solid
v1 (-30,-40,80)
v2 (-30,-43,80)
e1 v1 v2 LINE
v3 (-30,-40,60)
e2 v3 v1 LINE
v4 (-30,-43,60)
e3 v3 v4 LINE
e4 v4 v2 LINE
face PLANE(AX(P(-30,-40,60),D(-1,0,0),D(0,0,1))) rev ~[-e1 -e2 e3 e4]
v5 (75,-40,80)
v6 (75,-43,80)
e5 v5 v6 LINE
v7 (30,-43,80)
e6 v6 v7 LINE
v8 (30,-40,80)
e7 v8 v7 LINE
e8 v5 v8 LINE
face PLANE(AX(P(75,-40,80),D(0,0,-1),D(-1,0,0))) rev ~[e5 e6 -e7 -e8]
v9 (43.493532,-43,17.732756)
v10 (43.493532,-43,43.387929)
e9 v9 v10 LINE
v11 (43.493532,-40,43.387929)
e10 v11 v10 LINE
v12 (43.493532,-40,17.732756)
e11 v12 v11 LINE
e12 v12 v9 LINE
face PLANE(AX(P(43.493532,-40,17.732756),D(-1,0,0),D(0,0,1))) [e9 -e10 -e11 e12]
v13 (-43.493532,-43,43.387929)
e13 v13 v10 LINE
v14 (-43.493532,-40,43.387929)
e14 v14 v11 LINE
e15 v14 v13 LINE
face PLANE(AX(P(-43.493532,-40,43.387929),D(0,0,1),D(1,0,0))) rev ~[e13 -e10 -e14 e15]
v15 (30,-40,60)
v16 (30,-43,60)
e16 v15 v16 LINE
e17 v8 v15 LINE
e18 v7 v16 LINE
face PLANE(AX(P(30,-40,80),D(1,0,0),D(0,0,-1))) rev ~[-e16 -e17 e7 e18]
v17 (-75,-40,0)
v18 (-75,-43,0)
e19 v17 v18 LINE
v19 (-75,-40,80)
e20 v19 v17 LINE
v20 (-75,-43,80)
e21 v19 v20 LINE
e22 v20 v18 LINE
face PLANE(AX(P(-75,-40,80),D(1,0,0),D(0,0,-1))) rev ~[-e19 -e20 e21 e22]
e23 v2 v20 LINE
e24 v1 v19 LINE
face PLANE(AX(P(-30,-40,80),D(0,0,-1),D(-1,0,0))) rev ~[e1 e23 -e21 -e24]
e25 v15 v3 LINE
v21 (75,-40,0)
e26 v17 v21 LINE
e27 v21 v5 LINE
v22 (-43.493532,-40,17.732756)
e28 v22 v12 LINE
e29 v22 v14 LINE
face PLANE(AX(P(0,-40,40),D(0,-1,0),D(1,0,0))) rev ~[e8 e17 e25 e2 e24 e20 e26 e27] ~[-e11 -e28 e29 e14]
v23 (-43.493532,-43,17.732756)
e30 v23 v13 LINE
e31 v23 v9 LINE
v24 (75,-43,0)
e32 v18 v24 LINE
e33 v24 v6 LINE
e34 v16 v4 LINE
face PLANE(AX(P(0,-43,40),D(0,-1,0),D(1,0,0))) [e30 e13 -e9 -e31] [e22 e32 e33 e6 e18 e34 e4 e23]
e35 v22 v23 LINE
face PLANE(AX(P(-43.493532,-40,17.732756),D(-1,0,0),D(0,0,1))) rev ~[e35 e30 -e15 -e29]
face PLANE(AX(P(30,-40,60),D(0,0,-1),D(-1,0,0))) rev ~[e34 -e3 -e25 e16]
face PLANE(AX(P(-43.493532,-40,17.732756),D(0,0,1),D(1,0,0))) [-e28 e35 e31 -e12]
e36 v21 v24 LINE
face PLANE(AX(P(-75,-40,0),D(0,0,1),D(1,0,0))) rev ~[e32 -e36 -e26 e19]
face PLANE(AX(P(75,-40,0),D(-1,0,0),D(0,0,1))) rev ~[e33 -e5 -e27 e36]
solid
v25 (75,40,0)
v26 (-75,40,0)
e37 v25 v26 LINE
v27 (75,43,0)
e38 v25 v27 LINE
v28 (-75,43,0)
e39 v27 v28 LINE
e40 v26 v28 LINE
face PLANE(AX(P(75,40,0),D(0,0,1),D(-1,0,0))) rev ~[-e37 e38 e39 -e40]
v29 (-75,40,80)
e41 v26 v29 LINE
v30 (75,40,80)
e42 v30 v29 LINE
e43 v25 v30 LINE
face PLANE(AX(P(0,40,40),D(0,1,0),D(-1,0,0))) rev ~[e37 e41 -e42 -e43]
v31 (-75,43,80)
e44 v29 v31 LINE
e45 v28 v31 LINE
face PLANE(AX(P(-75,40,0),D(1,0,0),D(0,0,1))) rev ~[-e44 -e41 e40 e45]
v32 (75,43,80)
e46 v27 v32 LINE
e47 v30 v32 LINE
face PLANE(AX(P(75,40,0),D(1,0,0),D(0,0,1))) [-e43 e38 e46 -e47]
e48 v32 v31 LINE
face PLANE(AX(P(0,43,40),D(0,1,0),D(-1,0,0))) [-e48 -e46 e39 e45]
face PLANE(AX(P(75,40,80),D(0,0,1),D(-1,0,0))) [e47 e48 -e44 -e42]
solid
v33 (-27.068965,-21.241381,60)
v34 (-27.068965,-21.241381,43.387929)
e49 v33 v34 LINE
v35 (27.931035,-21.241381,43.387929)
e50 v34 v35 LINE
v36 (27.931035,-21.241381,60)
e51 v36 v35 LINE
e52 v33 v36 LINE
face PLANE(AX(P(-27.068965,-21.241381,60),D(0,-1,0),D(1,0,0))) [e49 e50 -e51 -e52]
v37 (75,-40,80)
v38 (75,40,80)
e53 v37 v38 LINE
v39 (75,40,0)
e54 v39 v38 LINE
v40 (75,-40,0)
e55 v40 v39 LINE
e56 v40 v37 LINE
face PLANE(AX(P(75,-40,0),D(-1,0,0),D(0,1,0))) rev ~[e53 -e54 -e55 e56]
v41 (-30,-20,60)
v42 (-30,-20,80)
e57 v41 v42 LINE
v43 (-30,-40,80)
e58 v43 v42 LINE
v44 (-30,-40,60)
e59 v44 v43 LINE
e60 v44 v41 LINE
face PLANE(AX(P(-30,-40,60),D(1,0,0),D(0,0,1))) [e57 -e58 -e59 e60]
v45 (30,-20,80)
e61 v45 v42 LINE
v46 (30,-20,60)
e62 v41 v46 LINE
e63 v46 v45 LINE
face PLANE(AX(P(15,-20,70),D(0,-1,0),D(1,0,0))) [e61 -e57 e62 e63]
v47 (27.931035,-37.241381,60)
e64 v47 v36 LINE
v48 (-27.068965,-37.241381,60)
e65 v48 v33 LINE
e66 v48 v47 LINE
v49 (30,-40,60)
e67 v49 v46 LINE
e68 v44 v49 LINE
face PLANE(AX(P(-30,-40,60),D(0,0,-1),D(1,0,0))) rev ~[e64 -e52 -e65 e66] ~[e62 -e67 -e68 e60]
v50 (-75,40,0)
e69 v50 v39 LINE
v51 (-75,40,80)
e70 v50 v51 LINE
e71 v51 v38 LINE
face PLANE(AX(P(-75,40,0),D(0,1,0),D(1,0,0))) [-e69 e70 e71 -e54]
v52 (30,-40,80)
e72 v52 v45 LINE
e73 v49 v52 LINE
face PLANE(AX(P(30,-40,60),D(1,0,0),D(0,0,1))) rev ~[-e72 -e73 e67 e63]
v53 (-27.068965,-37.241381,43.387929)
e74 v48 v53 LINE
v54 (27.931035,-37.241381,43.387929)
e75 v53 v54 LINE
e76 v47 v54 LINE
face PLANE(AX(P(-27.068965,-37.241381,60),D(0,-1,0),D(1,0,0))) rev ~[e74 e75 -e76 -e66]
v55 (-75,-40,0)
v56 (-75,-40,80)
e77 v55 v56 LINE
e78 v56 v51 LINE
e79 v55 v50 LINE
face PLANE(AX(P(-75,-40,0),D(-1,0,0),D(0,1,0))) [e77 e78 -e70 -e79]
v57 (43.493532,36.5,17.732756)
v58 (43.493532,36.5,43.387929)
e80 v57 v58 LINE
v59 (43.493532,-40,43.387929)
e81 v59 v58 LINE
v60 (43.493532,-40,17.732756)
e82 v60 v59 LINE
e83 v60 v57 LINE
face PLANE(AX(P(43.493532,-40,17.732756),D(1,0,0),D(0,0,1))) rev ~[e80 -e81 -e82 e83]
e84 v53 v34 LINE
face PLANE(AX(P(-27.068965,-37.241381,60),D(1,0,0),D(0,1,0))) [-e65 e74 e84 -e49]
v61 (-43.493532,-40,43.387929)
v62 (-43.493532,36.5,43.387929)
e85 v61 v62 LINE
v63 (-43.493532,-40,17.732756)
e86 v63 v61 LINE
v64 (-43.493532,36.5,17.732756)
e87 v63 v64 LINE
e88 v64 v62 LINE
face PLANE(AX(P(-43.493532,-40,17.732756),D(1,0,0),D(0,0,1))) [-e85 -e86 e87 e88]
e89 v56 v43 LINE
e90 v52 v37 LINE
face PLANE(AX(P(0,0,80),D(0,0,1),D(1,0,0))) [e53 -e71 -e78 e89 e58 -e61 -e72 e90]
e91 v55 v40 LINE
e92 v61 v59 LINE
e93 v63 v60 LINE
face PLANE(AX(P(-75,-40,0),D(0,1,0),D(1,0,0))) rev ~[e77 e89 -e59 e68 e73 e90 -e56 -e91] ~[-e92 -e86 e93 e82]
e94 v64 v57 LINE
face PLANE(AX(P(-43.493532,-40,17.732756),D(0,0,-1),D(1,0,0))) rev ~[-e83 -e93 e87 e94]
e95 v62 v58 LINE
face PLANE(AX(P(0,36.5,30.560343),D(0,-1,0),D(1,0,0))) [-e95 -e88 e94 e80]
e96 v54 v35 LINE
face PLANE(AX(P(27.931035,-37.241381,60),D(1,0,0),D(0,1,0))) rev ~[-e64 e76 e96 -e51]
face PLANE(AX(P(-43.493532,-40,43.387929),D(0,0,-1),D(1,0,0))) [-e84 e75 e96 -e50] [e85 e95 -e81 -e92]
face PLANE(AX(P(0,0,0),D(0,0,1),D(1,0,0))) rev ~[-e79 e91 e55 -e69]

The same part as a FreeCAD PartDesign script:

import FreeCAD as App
import Part
import Sketcher

V = App.Vector


def add_polygon(sketch, points):
    """Adds a closed chain of lines whose ends are joined by coincident constraints."""
    first, n = sketch.GeometryCount, len(points)
    for a, b in zip(points, points[1:] + points[:1]):
        sketch.addGeometry(Part.LineSegment(App.Vector(*a, 0), App.Vector(*b, 0)), False)
    for i in range(n):
        sketch.addConstraint(Sketcher.Constraint("Coincident", first + i, 2, first + (i + 1) % n, 1))

doc = App.newDocument("Part")
body = doc.addObject("PartDesign::Body", "Body")

# Sketch on XY plane
sketch1 = body.newObject("Sketcher::SketchObject", "Sketch")
sketch1.AttachmentSupport = (doc.getObject("XY_Plane"), [""])
sketch1.MapMode = "FlatFace"
add_polygon(sketch1, [(-75, 40), (-75, -40), (75, -40), (75, 40)])  # lines 0-3
sketch1.addConstraint([
    Sketcher.Constraint("Vertical", 0),
    Sketcher.Constraint("Horizontal", 1),
    Sketcher.Constraint("Vertical", 2),
    Sketcher.Constraint("Horizontal", 3),
    Sketcher.Constraint("Symmetric", 0, 2, 2, 2, -1, 1),
    Sketcher.Constraint("DistanceX", 1, 1, 1, 2, 150.0),
    Sketcher.Constraint("DistanceY", 0, 2, 0, 1, 80.0),
])
pad1 = body.newObject("PartDesign::Pad", "Pad")
pad1.Profile = sketch1
pad1.Length = 80

# Sketch on XZ plane
sketch2 = body.newObject("Sketcher::SketchObject", "Sketch001")
sketch2.AttachmentSupport = (doc.getObject("XZ_Plane"), [""])
sketch2.MapMode = "FlatFace"
sketch2.AttachmentOffset = App.Placement(V(0, 0, 40), App.Rotation())
add_polygon(sketch2, [(30, 60), (30, 80), (-30, 80), (-30, 60)])  # lines 0-3
sketch2.addConstraint([
    Sketcher.Constraint("Vertical", 0),
    Sketcher.Constraint("Horizontal", 1),
    Sketcher.Constraint("Vertical", 2),
    Sketcher.Constraint("Horizontal", 3),
    Sketcher.Constraint("DistanceX", 1, 2, 1, 1, 60.0),
    Sketcher.Constraint("DistanceY", 0, 1, 0, 2, 20.0),
    Sketcher.Constraint("DistanceX", -1, 1, 0, 2, 30.0),
    Sketcher.Constraint("DistanceY", -1, 1, 0, 2, 80.0),
])
pocket1 = body.newObject("PartDesign::Pocket", "Pocket")
pocket1.Profile = sketch2
pocket1.Length = 20

# Sketch on XY plane
sketch3 = body.newObject("Sketcher::SketchObject", "Sketch002")
sketch3.AttachmentSupport = (doc.getObject("XY_Plane"), [""])
sketch3.MapMode = "FlatFace"
sketch3.AttachmentOffset = App.Placement(V(0, 0, 60), App.Rotation())
add_polygon(sketch3, [(-27, -21), (-27, -37), (28, -37), (28, -21)])  # lines 0-3
sketch3.addConstraint([
    Sketcher.Constraint("Vertical", 0),
    Sketcher.Constraint("Horizontal", 1),
    Sketcher.Constraint("Vertical", 2),
    Sketcher.Constraint("Horizontal", 3),
    Sketcher.Constraint("DistanceX", 1, 1, 1, 2, 55.0),
    Sketcher.Constraint("DistanceY", 0, 2, 0, 1, 16.0),
    Sketcher.Constraint("DistanceY", 0, 2, -1, 1, 37.241381),
    Sketcher.Constraint("DistanceX", 0, 2, -1, 1, 27.068965),
])
pocket2 = body.newObject("PartDesign::Pocket", "Pocket001")
pocket2.Profile = sketch3
pocket2.Length = 26.8

# Sketch on XZ plane
sketch4 = body.newObject("Sketcher::SketchObject", "Sketch003")
sketch4.AttachmentSupport = (doc.getObject("XZ_Plane"), [""])
sketch4.MapMode = "FlatFace"
sketch4.AttachmentOffset = App.Placement(V(0, 0, 40), App.Rotation())
add_polygon(sketch4, [(-43, 43), (-43, 18), (43, 18), (43, 43)])  # lines 0-3
sketch4.addConstraint([
    Sketcher.Constraint("Vertical", 0),
    Sketcher.Constraint("Horizontal", 1),
    Sketcher.Constraint("Vertical", 2),
    Sketcher.Constraint("Horizontal", 3),
    Sketcher.Constraint("DistanceX", 1, 1, 1, 2, 86.987063),
    Sketcher.Constraint("DistanceY", 0, 2, 0, 1, 25.655173),
    Sketcher.Constraint("DistanceX", 0, 2, -1, 1, 43.493532),
    Sketcher.Constraint("DistanceY", -1, 1, 2, 2, 43.387929),
])
pocket3 = body.newObject("PartDesign::Pocket", "Pocket002")
pocket3.Profile = sketch4
pocket3.Length = 76.5
body2 = doc.addObject("PartDesign::Body", "Body001")

# Sketch on XZ plane
sketch5 = body2.newObject("Sketcher::SketchObject", "Sketch004")
sketch5.AttachmentSupport = (doc.getObject("XZ_Plane001"), [""])
sketch5.MapMode = "FlatFace"
sketch5.AttachmentOffset = App.Placement(V(0, 0, 40), App.Rotation())
add_polygon(sketch5, [(75, 0), (75, 80), (30, 80), (30, 60), (-30, 60), (-30, 80), (-75, 80), (-75, 0)])  # lines 0-7
add_polygon(sketch5, [(43, 18), (-43, 18), (-43, 43), (43, 43)])  # lines 8-11
sketch5.addConstraint([
    Sketcher.Constraint("Vertical", 0),
    Sketcher.Constraint("Horizontal", 1),
    Sketcher.Constraint("Vertical", 2),
    Sketcher.Constraint("Horizontal", 3),
    Sketcher.Constraint("Vertical", 4),
    Sketcher.Constraint("Horizontal", 5),
    Sketcher.Constraint("Vertical", 6),
    Sketcher.Constraint("Horizontal", 7),
    Sketcher.Constraint("Horizontal", 8),
    Sketcher.Constraint("Vertical", 9),
    Sketcher.Constraint("Horizontal", 10),
    Sketcher.Constraint("Vertical", 11),
    Sketcher.Constraint("Symmetric", 6, 2, 7, 2, -1, 1),
    Sketcher.Constraint("Symmetric", 1, 2, 4, 2, -2),
    Sketcher.Constraint("DistanceX", 1, 2, 1, 1, 45.0),
    Sketcher.Constraint("DistanceX", 3, 2, 3, 1, 60.0),
    Sketcher.Constraint("DistanceY", 0, 1, 0, 2, 80.0),
    Sketcher.Constraint("DistanceY", 2, 2, 2, 1, 20.0),
    Sketcher.Constraint("DistanceX", 8, 2, 8, 1, 86.987063),
    Sketcher.Constraint("DistanceY", 9, 1, 9, 2, 25.655173),
    Sketcher.Constraint("DistanceX", 8, 2, -1, 1, 43.493532),
    Sketcher.Constraint("DistanceY", -1, 1, 9, 2, 43.387929),
])
pad2 = body2.newObject("PartDesign::Pad", "Pad001")
pad2.Profile = sketch5
pad2.Length = 3
body3 = doc.addObject("PartDesign::Body", "Body002")

# Sketch on XZ plane
sketch6 = body3.newObject("Sketcher::SketchObject", "Sketch005")
sketch6.AttachmentSupport = (doc.getObject("XZ_Plane002"), [""])
sketch6.MapMode = "FlatFace"
sketch6.AttachmentOffset = App.Placement(V(0, 0, -40), App.Rotation())
add_polygon(sketch6, [(75, 80), (75, 0), (-75, 0), (-75, 80)])  # lines 0-3
sketch6.addConstraint([
    Sketcher.Constraint("Vertical", 0),
    Sketcher.Constraint("Horizontal", 1),
    Sketcher.Constraint("Vertical", 2),
    Sketcher.Constraint("Horizontal", 3),
    Sketcher.Constraint("Symmetric", 0, 2, 1, 2, -1, 1),
    Sketcher.Constraint("DistanceX", 1, 2, 1, 1, 150.0),
    Sketcher.Constraint("DistanceY", 0, 2, 0, 1, 80.0),
])
pad3 = body3.newObject("PartDesign::Pad", "Pad002")
pad3.Profile = sketch6
pad3.Length = 3
pad3.Reversed = True

doc.recompute()
